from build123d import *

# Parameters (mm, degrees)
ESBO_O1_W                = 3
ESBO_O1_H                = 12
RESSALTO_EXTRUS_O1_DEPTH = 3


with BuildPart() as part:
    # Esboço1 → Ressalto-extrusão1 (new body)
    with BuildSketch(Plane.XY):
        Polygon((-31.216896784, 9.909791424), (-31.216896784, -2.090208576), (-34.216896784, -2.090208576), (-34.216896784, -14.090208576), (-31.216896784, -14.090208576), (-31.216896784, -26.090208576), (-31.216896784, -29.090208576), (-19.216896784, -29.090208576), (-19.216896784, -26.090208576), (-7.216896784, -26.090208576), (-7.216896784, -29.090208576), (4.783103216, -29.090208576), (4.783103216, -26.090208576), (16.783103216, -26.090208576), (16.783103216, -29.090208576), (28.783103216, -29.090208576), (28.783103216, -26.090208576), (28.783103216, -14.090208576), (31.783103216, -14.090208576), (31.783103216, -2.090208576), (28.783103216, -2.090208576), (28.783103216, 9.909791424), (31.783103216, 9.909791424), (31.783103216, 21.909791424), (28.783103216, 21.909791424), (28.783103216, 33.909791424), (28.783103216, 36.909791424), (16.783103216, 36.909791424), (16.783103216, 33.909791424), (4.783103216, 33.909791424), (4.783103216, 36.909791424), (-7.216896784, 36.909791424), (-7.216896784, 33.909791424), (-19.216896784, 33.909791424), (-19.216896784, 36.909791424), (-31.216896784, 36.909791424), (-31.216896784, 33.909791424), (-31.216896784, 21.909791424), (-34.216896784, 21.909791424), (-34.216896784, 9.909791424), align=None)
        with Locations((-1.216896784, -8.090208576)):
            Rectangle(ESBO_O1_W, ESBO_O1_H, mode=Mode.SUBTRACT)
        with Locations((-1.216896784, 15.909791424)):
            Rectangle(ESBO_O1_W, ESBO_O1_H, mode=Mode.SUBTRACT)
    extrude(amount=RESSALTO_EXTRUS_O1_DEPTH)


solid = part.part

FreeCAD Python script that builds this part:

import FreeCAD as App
import Part
import Sketcher


def add_polygon(sketch, points):
    """Adds a closed chain of lines whose ends are joined by coincident constraints."""
    first, n = sketch.GeometryCount, len(points)
    for a, b in zip(points, points[1:] + points[:1]):
        sketch.addGeometry(Part.LineSegment(App.Vector(*a, 0), App.Vector(*b, 0)), False)
    for i in range(n):
        sketch.addConstraint(Sketcher.Constraint("Coincident", first + i, 2, first + (i + 1) % n, 1))

doc = App.newDocument("Part")
body = doc.addObject("PartDesign::Body", "Body")

# Sketch on XY plane
sketch1 = body.newObject("Sketcher::SketchObject", "Sketch")
sketch1.AttachmentSupport = (doc.getObject("XY_Plane"), [""])
sketch1.MapMode = "FlatFace"
add_polygon(sketch1, [(-31.2, 9.9), (-31.2, -2.1), (-34.2, -2.1), (-34.2, -14.1), (-31.2, -14.1), (-31.2, -29.1), (-19.2, -29.1), (-19.2, -26.1), (-7.2, -26.1), (-7.2, -29.1), (4.8, -29.1), (4.8, -26.1), (16.8, -26.1), (16.8, -29.1), (28.8, -29.1), (28.8, -14.1), (31.8, -14.1), (31.8, -2.1), (28.8, -2.1), (28.8, 9.9), (31.8, 9.9), (31.8, 21.9), (28.8, 21.9), (28.8, 36.9), (16.8, 36.9), (16.8, 33.9), (4.8, 33.9), (4.8, 36.9), (-7.2, 36.9), (-7.2, 33.9), (-19.2, 33.9), (-19.2, 36.9), (-31.2, 36.9), (-31.2, 21.9), (-34.2, 21.9), (-34.2, 9.9)])  # lines 0-35
add_polygon(sketch1, [(0.3, -14.1), (-2.7, -14.1), (-2.7, -2.1), (0.3, -2.1)])  # lines 36-39
add_polygon(sketch1, [(0.3, 9.9), (-2.7, 9.9), (-2.7, 21.9), (0.3, 21.9)])  # lines 40-43
sketch1.addConstraint([
    Sketcher.Constraint("Vertical", 0),
    Sketcher.Constraint("Horizontal", 1),
    Sketcher.Constraint("Vertical", 2),
    Sketcher.Constraint("Horizontal", 3),
    Sketcher.Constraint("Vertical", 4),
    Sketcher.Constraint("Horizontal", 5),
    Sketcher.Constraint("Vertical", 6),
    Sketcher.Constraint("Horizontal", 7),
    Sketcher.Constraint("Vertical", 8),
    Sketcher.Constraint("Horizontal", 9),
    Sketcher.Constraint("Vertical", 10),
    Sketcher.Constraint("Horizontal", 11),
    Sketcher.Constraint("Vertical", 12),
    Sketcher.Constraint("Horizontal", 13),
    Sketcher.Constraint("Vertical", 14),
    Sketcher.Constraint("Horizontal", 15),
    Sketcher.Constraint("Vertical", 16),
    Sketcher.Constraint("Horizontal", 17),
    Sketcher.Constraint("Vertical", 18),
    Sketcher.Constraint("Horizontal", 19),
    Sketcher.Constraint("Vertical", 20),
    Sketcher.Constraint("Horizontal", 21),
    Sketcher.Constraint("Vertical", 22),
    Sketcher.Constraint("Horizontal", 23),
    Sketcher.Constraint("Vertical", 24),
    Sketcher.Constraint("Horizontal", 25),
    Sketcher.Constraint("Vertical", 26),
    Sketcher.Constraint("Horizontal", 27),
    Sketcher.Constraint("Vertical", 28),
    Sketcher.Constraint("Horizontal", 29),
    Sketcher.Constraint("Vertical", 30),
    Sketcher.Constraint("Horizontal", 31),
    Sketcher.Constraint("Vertical", 32),
    Sketcher.Constraint("Horizontal", 33),
    Sketcher.Constraint("Vertical", 34),
    Sketcher.Constraint("Horizontal", 35),
    Sketcher.Constraint("Horizontal", 36),
    Sketcher.Constraint("Vertical", 37),
    Sketcher.Constraint("Horizontal", 38),
    Sketcher.Constraint("Vertical", 39),
    Sketcher.Constraint("Horizontal", 40),
    Sketcher.Constraint("Vertical", 41),
    Sketcher.Constraint("Horizontal", 42),
    Sketcher.Constraint("Vertical", 43),
    Sketcher.Constraint("Horizontal", 5, 2, 8, 2),
    Sketcher.Constraint("Horizontal", 7, 2, 10, 2),
    Sketcher.Constraint("Horizontal", 9, 2, 12, 2),
    Sketcher.Constraint("Horizontal", 3, 2, 14, 2),
    Sketcher.Constraint("Horizontal", 1, 2, 16, 2),
    Sketcher.Constraint("Horizontal", 23, 2, 26, 2),
    Sketcher.Constraint("Horizontal", 25, 2, 28, 2),
    Sketcher.Constraint("Horizontal", 27, 2, 30, 2),
    Sketcher.Constraint("Horizontal", 21, 2, 32, 2),
    Sketcher.Constraint("Horizontal", 19, 2, 34, 2),
    Sketcher.Constraint("Horizontal", 15, 2, 36, 2),
    Sketcher.Constraint("Horizontal", 17, 2, 37, 2),
    Sketcher.Constraint("Horizontal", 35, 2, 40, 2),
    Sketcher.Constraint("Horizontal", 33, 2, 41, 2),
    Sketcher.Constraint("Vertical", 0, 2, 3, 2),
    Sketcher.Constraint("Vertical", 14, 2, 17, 2),
    Sketcher.Constraint("Vertical", 16, 2, 19, 2),
    Sketcher.Constraint("Vertical", 18, 2, 21, 2),
    Sketcher.Constraint("Vertical", 12, 2, 23, 2),
    Sketcher.Constraint("Vertical", 10, 2, 25, 2),
    Sketcher.Constraint("Vertical", 8, 2, 27, 2),
    Sketcher.Constraint("Vertical", 6, 2, 29, 2),
    Sketcher.Constraint("Vertical", 4, 2, 31, 2),
    Sketcher.Constraint("Vertical", 2, 2, 33, 2),
    Sketcher.Constraint("Vertical", 37, 2, 40, 2),
    Sketcher.Constraint("Vertical", 39, 2, 42, 2),
    Sketcher.Constraint("Equal", 5, 7),
    Sketcher.Constraint("Equal", 7, 9),
    Sketcher.Constraint("Equal", 9, 11),
    Sketcher.Constraint("Equal", 11, 13),
    Sketcher.Constraint("Equal", 3, 15),
    Sketcher.Constraint("Equal", 35, 36),
    Sketcher.Constraint("Equal", 31, 0),
    Sketcher.Constraint("Equal", 0, 2),
    Sketcher.Constraint("Equal", 42, 6),
    Sketcher.Constraint("Equal", 18, 20),
    Sketcher.Constraint("Equal", 14, 22),
    Sketcher.Constraint("Equal", 12, 24),
    Sketcher.Constraint("DistanceX", 1, 2, 1, 1, 3.0),
    Sketcher.Constraint("DistanceX", 5, 1, 5, 2, 12.0),
    Sketcher.Constraint("DistanceY", 4, 2, 4, 1, 15.0),
    Sketcher.Constraint("DistanceX", 7, 2, 36, 2, 4.5),
    Sketcher.Constraint("DistanceY", 0, 2, -1, 1, 2.090209),
    Sketcher.Constraint("DistanceX", 0, 2, -1, 1, 31.216897),
])
pad1 = body.newObject("PartDesign::Pad", "Pad")
pad1.Profile = sketch1
pad1.Length = 3

doc.recompute()
